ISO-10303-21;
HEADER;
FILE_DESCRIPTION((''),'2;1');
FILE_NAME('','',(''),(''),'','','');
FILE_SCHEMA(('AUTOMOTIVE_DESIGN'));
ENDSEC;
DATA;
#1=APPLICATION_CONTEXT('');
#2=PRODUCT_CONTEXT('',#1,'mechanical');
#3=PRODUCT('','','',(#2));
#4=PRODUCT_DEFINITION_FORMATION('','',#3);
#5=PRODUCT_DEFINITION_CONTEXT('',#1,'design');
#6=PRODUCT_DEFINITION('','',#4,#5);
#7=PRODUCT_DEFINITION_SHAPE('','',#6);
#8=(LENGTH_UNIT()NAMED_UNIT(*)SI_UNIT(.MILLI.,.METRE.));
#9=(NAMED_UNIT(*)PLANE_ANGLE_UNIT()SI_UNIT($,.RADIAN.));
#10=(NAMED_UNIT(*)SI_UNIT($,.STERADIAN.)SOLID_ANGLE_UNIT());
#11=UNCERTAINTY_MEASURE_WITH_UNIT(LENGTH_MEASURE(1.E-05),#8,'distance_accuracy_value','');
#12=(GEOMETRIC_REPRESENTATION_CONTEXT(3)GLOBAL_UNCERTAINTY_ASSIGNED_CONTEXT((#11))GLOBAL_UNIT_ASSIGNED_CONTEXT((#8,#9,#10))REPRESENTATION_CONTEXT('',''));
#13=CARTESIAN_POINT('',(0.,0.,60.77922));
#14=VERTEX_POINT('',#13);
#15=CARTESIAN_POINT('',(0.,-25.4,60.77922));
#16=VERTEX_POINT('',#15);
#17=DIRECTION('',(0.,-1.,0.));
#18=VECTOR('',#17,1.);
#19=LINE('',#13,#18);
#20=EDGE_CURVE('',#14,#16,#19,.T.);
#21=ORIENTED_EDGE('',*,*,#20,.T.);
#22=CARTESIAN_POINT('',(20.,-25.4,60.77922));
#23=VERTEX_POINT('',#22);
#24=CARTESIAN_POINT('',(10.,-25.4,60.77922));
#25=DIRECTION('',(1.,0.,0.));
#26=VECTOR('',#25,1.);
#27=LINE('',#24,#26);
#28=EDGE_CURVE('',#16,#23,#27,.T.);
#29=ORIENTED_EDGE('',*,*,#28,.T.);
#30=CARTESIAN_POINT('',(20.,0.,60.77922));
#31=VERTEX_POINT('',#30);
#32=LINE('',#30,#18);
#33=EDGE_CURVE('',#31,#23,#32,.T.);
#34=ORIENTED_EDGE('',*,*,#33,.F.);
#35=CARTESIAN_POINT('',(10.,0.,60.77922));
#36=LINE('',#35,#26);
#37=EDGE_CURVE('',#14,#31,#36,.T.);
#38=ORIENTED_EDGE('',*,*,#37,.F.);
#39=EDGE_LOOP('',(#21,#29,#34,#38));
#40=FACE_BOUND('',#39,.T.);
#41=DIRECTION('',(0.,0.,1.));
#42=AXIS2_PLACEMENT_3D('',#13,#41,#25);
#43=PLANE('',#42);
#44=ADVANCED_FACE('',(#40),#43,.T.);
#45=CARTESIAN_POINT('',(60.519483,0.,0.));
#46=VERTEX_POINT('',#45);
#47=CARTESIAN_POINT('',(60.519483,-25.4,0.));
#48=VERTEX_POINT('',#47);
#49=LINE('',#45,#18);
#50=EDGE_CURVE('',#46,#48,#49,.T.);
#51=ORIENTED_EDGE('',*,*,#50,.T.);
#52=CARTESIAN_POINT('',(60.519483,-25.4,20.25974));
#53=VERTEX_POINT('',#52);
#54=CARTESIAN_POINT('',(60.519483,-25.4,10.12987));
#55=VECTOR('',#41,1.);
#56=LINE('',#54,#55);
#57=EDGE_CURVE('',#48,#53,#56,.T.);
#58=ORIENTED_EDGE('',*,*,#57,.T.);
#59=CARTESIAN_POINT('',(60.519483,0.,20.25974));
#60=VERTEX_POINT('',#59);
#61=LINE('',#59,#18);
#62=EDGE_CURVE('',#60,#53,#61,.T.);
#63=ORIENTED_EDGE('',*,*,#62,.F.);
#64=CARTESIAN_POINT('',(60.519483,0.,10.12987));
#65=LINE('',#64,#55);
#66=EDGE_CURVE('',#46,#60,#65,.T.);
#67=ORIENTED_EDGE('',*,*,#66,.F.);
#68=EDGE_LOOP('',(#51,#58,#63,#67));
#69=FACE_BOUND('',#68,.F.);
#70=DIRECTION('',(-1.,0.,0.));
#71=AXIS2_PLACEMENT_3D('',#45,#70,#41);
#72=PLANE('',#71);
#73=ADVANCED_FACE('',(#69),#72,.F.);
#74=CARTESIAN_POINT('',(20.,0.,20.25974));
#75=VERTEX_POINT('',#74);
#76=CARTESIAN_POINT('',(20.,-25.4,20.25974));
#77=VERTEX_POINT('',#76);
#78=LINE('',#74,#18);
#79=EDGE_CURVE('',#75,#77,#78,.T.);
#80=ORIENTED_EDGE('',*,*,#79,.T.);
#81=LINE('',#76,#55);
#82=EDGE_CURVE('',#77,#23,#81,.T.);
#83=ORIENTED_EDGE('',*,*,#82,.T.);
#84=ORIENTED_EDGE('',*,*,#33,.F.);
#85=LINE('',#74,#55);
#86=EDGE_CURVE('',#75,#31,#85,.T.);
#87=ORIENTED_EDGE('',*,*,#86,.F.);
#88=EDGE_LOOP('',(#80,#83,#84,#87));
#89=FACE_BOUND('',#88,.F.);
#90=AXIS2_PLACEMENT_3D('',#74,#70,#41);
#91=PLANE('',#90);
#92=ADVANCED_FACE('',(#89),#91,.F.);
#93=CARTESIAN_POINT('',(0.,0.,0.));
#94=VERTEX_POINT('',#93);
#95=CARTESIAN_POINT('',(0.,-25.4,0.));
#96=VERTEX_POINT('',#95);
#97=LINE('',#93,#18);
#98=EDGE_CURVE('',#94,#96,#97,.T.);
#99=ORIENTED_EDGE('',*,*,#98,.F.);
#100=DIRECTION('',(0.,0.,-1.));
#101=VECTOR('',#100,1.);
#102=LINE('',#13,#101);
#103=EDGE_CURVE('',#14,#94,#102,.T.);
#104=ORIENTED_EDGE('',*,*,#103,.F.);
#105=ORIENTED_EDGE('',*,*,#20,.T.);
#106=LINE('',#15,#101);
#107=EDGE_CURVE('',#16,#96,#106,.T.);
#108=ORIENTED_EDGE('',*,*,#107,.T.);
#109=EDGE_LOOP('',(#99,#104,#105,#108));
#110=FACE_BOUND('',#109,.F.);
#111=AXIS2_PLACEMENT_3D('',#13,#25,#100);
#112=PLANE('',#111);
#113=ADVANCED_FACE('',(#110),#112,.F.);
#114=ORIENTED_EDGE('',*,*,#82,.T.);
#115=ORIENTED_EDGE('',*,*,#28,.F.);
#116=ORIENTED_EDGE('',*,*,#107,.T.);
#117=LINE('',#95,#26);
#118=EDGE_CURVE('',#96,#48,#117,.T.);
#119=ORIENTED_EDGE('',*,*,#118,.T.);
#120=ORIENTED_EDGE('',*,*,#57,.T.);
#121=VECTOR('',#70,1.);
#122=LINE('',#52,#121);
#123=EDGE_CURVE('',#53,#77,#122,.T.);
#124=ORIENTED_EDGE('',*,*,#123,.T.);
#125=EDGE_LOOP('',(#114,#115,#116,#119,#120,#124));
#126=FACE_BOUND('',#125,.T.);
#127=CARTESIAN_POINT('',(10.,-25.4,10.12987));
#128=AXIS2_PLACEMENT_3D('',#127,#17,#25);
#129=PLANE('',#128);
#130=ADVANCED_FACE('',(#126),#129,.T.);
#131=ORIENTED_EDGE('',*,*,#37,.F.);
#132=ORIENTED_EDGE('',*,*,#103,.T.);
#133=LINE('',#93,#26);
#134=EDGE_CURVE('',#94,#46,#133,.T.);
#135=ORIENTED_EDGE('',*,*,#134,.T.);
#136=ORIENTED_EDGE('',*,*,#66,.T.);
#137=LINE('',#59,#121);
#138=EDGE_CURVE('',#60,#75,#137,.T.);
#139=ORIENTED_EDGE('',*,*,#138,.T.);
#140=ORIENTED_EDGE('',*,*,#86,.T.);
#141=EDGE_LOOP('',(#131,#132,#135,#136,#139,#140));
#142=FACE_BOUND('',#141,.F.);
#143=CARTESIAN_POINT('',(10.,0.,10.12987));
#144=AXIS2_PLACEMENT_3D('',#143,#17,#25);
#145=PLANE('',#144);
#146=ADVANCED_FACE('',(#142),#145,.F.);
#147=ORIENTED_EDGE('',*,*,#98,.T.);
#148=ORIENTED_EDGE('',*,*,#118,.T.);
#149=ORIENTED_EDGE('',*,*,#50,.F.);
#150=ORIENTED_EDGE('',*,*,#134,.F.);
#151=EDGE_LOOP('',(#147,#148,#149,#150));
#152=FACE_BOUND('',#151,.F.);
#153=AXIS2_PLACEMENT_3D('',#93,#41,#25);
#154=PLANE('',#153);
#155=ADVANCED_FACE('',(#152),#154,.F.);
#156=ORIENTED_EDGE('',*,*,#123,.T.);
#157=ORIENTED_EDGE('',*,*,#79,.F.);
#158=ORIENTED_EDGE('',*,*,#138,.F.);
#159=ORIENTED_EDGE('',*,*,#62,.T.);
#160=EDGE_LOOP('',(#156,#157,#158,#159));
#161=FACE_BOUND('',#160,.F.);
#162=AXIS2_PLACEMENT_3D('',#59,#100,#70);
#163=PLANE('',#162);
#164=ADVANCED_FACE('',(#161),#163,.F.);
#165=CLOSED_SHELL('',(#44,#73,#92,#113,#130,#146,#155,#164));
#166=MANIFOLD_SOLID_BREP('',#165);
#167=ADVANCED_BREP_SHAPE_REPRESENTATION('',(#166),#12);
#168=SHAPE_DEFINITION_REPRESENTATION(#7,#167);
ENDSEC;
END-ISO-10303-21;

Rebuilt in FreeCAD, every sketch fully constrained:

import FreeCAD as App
import Part
import Sketcher

V = App.Vector

doc = App.newDocument("Part")
body = doc.addObject("PartDesign::Body", "Body")

# Sketch on XZ plane
sketch1 = body.newObject("Sketcher::SketchObject", "Sketch")
sketch1.AttachmentSupport = (doc.getObject("XZ_Plane"), [""])
sketch1.MapMode = "FlatFace"
sketch1.addGeometry(Part.LineSegment(V(0, 61, 0), V(0, 0, 0)), False)
sketch1.addGeometry(Part.LineSegment(V(0, 0, 0), V(61, 0, 0)), False)
sketch1.addGeometry(Part.LineSegment(V(61, 0, 0), V(61, 20, 0)), False)
sketch1.addGeometry(Part.LineSegment(V(61, 20, 0), V(20, 20, 0)), False)
sketch1.addGeometry(Part.LineSegment(V(20, 20, 0), V(20, 61, 0)), False)
sketch1.addGeometry(Part.LineSegment(V(20, 61, 0), V(0, 61, 0)), False)
sketch1.addConstraint(Sketcher.Constraint("Coincident", 0, 2, 1, 1))
sketch1.addConstraint(Sketcher.Constraint("Coincident", 1, 2, 2, 1))
sketch1.addConstraint(Sketcher.Constraint("Coincident", 2, 2, 3, 1))
sketch1.addConstraint(Sketcher.Constraint("Coincident", 3, 2, 4, 1))
sketch1.addConstraint(Sketcher.Constraint("Coincident", 4, 2, 5, 1))
sketch1.addConstraint(Sketcher.Constraint("Coincident", 5, 2, 0, 1))
sketch1.addConstraint(Sketcher.Constraint("Vertical", 0))
sketch1.addConstraint(Sketcher.Constraint("Horizontal", 1))
sketch1.addConstraint(Sketcher.Constraint("Vertical", 2))
sketch1.addConstraint(Sketcher.Constraint("Horizontal", 3))
sketch1.addConstraint(Sketcher.Constraint("Vertical", 4))
sketch1.addConstraint(Sketcher.Constraint("Horizontal", 5))
sketch1.addConstraint(Sketcher.Constraint("Coincident", 0, 2, -1, 1))
sketch1.addConstraint(Sketcher.Constraint("DistanceX", 5, 2, 5, 1, 20.0))
sketch1.addConstraint(Sketcher.Constraint("DistanceY", 0, 2, 0, 1, 60.77922))
sketch1.addConstraint(Sketcher.Constraint("DistanceY", 2, 1, 2, 2, 20.25974))
sketch1.addConstraint(Sketcher.Constraint("DistanceX", 1, 1, 1, 2, 60.519483))
pad1 = body.newObject("PartDesign::Pad", "Pad")
pad1.Profile = sketch1
pad1.Length = 25.4

doc.recompute()
